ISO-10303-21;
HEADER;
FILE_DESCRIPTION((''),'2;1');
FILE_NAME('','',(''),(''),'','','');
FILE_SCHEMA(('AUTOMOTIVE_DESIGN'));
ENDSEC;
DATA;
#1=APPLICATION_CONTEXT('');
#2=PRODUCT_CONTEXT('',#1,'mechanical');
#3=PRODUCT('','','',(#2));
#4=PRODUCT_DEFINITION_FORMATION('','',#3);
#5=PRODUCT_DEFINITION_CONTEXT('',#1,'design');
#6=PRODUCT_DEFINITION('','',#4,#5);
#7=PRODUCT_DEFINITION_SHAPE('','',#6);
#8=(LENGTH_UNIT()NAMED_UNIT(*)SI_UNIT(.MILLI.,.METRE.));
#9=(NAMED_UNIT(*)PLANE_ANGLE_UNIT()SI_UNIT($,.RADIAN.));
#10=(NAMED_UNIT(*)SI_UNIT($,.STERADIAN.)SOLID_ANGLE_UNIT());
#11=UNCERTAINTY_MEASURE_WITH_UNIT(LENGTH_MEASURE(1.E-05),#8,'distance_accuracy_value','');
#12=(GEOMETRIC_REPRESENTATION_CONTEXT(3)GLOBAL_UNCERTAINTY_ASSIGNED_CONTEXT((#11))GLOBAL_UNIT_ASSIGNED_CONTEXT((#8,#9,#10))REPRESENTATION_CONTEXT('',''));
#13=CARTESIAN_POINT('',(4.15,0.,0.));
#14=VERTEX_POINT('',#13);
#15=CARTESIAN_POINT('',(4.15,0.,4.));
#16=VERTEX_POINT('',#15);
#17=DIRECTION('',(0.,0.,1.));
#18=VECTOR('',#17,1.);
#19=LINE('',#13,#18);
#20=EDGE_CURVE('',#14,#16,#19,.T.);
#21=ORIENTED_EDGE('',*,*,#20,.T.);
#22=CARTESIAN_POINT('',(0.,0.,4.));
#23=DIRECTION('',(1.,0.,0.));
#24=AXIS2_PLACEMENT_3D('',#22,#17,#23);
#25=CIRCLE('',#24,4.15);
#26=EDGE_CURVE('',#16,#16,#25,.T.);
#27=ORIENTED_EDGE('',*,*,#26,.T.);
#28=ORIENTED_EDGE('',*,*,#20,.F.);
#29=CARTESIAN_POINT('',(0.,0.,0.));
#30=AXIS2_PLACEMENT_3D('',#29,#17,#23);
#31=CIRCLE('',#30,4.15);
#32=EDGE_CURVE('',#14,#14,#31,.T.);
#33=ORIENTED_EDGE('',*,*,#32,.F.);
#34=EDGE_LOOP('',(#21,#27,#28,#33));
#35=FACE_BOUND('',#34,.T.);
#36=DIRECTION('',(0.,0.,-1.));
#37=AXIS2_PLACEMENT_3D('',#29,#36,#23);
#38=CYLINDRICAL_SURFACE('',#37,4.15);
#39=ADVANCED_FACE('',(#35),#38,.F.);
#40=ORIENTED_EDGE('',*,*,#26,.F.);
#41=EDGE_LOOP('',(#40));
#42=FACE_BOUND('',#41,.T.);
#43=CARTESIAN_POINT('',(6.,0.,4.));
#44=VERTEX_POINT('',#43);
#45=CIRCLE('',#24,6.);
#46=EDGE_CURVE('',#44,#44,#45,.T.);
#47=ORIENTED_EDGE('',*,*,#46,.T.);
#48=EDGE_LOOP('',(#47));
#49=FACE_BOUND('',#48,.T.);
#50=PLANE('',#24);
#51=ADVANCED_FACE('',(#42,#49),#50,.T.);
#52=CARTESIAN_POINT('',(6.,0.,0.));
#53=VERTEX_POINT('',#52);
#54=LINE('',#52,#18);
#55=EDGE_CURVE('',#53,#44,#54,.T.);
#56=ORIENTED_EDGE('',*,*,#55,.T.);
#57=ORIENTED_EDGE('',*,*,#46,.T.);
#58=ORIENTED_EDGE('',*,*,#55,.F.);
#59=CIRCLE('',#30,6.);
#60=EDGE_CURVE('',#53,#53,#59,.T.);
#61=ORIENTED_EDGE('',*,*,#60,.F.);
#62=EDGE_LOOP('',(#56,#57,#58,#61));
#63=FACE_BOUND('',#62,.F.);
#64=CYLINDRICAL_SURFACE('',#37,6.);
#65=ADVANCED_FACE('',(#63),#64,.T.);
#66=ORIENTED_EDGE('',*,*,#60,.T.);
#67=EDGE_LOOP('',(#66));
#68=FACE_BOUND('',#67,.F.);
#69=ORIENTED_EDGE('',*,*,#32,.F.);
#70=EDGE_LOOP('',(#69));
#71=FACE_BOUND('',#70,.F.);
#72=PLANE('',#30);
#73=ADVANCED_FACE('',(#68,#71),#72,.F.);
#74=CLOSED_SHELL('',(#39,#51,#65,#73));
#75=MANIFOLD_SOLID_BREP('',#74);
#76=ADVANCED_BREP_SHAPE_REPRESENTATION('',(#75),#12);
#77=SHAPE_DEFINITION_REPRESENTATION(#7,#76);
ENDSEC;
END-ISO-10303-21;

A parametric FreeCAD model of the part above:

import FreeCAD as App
import Part
import Sketcher

doc = App.newDocument("Part")
body = doc.addObject("PartDesign::Body", "Body")

sketch1 = body.newObject("Sketcher::SketchObject", "Sketch")
sketch1.AttachmentSupport = (doc.getObject("XY_Plane"), [""])
sketch1.MapMode = "FlatFace"
sketch1.addGeometry([
    Part.Circle(App.Vector(0, 0, 0), App.Vector(0, 0, 1), 6),
    Part.Circle(App.Vector(0, 0, 0), App.Vector(0, 0, 1), 4.15),
], False)
sketch1.addConstraint([
    Sketcher.Constraint("Coincident", 0, 3, -1, 1),
    Sketcher.Constraint("Coincident", 1, 3, -1, 1),
    Sketcher.Constraint("Diameter", 0, 12.0),
    Sketcher.Constraint("Diameter", 1, 8.3),
])
pad1 = body.newObject("PartDesign::Pad", "Pad")
pad1.Profile = sketch1
pad1.Length = 4

doc.recompute()
